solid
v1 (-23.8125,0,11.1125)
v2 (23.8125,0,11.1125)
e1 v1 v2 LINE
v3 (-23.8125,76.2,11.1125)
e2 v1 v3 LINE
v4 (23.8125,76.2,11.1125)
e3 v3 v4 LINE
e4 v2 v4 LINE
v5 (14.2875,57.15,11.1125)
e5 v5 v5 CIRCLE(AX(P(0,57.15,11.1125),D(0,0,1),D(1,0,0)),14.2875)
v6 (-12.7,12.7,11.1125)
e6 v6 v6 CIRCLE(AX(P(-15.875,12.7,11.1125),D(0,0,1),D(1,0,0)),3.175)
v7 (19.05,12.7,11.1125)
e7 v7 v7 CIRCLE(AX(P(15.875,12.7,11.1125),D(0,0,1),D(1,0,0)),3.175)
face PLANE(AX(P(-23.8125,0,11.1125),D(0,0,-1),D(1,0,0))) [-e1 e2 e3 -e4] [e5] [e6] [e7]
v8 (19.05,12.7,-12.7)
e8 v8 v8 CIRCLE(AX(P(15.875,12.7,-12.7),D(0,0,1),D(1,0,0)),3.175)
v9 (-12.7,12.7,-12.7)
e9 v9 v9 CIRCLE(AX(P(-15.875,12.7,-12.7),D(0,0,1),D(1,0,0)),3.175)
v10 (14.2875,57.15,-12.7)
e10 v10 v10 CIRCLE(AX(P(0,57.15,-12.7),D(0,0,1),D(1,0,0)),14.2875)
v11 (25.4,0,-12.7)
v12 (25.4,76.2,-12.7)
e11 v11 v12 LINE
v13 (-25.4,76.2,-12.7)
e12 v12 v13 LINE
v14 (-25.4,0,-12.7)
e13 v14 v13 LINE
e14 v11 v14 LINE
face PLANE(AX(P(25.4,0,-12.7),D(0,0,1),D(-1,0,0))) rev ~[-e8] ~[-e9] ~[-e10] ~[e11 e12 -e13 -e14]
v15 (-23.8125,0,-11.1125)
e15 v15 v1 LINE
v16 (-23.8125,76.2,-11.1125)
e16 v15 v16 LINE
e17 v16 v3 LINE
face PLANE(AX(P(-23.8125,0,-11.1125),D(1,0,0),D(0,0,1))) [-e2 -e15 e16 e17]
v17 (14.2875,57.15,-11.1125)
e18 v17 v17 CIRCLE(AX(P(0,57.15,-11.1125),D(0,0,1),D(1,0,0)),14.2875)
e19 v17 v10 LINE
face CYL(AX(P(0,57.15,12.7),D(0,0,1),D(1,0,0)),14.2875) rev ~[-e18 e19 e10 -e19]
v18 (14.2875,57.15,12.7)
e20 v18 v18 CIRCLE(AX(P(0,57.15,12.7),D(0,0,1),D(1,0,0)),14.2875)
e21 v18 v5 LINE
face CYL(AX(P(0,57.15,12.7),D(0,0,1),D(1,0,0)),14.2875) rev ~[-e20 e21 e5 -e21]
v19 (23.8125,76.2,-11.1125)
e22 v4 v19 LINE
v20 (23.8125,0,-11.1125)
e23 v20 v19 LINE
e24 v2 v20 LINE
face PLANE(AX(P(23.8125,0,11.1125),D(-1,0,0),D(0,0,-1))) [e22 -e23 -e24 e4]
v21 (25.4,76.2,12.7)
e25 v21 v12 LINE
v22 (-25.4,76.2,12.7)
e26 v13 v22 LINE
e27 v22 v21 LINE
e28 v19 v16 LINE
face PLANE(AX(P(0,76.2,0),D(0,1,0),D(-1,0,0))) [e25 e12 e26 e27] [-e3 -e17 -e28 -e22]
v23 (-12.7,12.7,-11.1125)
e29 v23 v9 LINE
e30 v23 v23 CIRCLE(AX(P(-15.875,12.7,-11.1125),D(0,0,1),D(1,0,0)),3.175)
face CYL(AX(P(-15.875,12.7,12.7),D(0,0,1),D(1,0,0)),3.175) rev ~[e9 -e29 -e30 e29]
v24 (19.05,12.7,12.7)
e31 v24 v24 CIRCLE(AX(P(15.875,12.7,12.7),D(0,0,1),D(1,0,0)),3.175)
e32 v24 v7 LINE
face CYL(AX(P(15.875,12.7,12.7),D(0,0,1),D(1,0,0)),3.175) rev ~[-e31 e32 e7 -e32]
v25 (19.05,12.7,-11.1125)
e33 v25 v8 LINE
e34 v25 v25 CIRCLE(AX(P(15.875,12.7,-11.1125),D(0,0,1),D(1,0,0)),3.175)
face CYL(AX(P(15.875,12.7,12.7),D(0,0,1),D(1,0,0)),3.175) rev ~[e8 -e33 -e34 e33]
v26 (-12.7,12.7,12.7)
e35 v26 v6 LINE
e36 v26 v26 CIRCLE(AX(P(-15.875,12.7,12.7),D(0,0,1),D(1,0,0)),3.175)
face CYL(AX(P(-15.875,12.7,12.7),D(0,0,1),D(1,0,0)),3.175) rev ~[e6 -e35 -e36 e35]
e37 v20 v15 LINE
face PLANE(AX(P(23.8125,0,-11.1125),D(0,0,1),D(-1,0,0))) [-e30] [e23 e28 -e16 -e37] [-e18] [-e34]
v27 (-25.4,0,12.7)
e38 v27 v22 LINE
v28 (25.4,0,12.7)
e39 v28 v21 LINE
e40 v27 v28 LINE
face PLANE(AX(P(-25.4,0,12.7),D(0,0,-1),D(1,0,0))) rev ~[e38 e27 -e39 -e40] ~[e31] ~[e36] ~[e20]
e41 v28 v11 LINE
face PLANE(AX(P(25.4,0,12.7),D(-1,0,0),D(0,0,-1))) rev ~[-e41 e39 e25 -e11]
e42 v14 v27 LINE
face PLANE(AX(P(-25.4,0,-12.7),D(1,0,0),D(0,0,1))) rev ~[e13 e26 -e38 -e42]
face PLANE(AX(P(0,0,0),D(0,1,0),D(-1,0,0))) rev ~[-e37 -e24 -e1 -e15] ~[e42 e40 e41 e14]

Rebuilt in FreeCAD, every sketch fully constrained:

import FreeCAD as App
import Part
import Sketcher
from FreeCAD import Vector
Q = App.Units.Quantity

doc = App.newDocument("Part")
body = doc.addObject("PartDesign::Body", "Body")

# Sketch on XZ plane
sketch1 = doc.addObject("Sketcher::SketchObject", "Sketch")
body.addObject(sketch1)
sketch1.AttachmentSupport = (doc.XZ_Plane, [""])
sketch1.MapMode = "FlatFace"
sketch1.addGeometry(Part.LineSegment(Vector(25, 13, 0), Vector(25, -13, 0)), False)
sketch1.addGeometry(Part.LineSegment(Vector(25, -13, 0), Vector(-25, -13, 0)), False)
sketch1.addGeometry(Part.LineSegment(Vector(-25, -13, 0), Vector(-25, 13, 0)), False)
sketch1.addGeometry(Part.LineSegment(Vector(-25, 13, 0), Vector(25, 13, 0)), False)
sketch1.addGeometry(Part.LineSegment(Vector(24, 11, 0), Vector(-24, 11, 0)), False)
sketch1.addGeometry(Part.LineSegment(Vector(-24, 11, 0), Vector(-24, -11, 0)), False)
sketch1.addGeometry(Part.LineSegment(Vector(-24, -11, 0), Vector(24, -11, 0)), False)
sketch1.addGeometry(Part.LineSegment(Vector(24, -11, 0), Vector(24, 11, 0)), False)
sketch1.addConstraint(Sketcher.Constraint("Coincident", 0, 2, 1, 1))
sketch1.addConstraint(Sketcher.Constraint("Coincident", 1, 2, 2, 1))
sketch1.addConstraint(Sketcher.Constraint("Coincident", 2, 2, 3, 1))
sketch1.addConstraint(Sketcher.Constraint("Coincident", 3, 2, 0, 1))
sketch1.addConstraint(Sketcher.Constraint("Coincident", 4, 2, 5, 1))
sketch1.addConstraint(Sketcher.Constraint("Coincident", 5, 2, 6, 1))
sketch1.addConstraint(Sketcher.Constraint("Coincident", 6, 2, 7, 1))
sketch1.addConstraint(Sketcher.Constraint("Coincident", 7, 2, 4, 1))
sketch1.addConstraint(Sketcher.Constraint("Vertical", 0))
sketch1.addConstraint(Sketcher.Constraint("Horizontal", 1))
sketch1.addConstraint(Sketcher.Constraint("Vertical", 2))
sketch1.addConstraint(Sketcher.Constraint("Horizontal", 3))
sketch1.addConstraint(Sketcher.Constraint("Horizontal", 4))
sketch1.addConstraint(Sketcher.Constraint("Vertical", 5))
sketch1.addConstraint(Sketcher.Constraint("Horizontal", 6))
sketch1.addConstraint(Sketcher.Constraint("Vertical", 7))
sketch1.addConstraint(Sketcher.Constraint("Symmetric", 0, 2, 2, 2, -1, 1))
sketch1.addConstraint(Sketcher.Constraint("Symmetric", 4, 2, 6, 2, -1, 1))
sketch1.addConstraint(Sketcher.Constraint("DistanceX", 1, 2, 1, 1, Q("2 in")))
sketch1.addConstraint(Sketcher.Constraint("DistanceY", 0, 2, 0, 1, Q("1 in")))
sketch1.addConstraint(Sketcher.Constraint("DistanceX", 2, 2, 4, 2, Q("0.0625 in")))
sketch1.addConstraint(Sketcher.Constraint("DistanceY", 4, 2, 2, 2, Q("0.0625 in")))
pad1 = doc.addObject("PartDesign::Pad", "Pad")
body.addObject(pad1)
pad1.Profile = sketch1
pad1.Length = Q("3 in")
pad1.Reversed = True

# Sketch on XY plane
sketch2 = doc.addObject("Sketcher::SketchObject", "Sketch001")
body.addObject(sketch2)
sketch2.AttachmentSupport = (doc.XY_Plane, [""])
sketch2.MapMode = "FlatFace"
sketch2.AttachmentOffset = App.Placement(Vector(0, 0, 0.5 * 25.4), App.Rotation())
sketch2.addGeometry(Part.Circle(Vector(0, 57.1, 0), Vector(0, 0, 1), 14.3), False)
sketch2.addGeometry(Part.Circle(Vector(-15.9, 12.7, 0), Vector(0, 0, 1), 3.2), False)
sketch2.addGeometry(Part.Circle(Vector(15.9, 12.7, 0), Vector(0, 0, 1), 3.2), False)
sketch2.addConstraint(Sketcher.Constraint("Equal", 1, 2))
sketch2.addConstraint(Sketcher.Constraint("Symmetric", 1, 3, 2, 3, -2))
sketch2.addConstraint(Sketcher.Constraint("PointOnObject", 0, 3, -2))
sketch2.addConstraint(Sketcher.Constraint("Diameter", 1, Q("0.25 in")))
sketch2.addConstraint(Sketcher.Constraint("Diameter", 0, Q("1.125 in")))
sketch2.addConstraint(Sketcher.Constraint("DistanceY", -1, 1, 1, 3, Q("0.5 in")))
sketch2.addConstraint(Sketcher.Constraint("DistanceX", 1, 3, 2, 3, Q("1.25 in")))
sketch2.addConstraint(Sketcher.Constraint("DistanceY", -1, 1, 0, 3, Q("2.25 in")))
pocket1 = doc.addObject("PartDesign::Pocket", "Pocket")
body.addObject(pocket1)
pocket1.Profile = sketch2
pocket1.Length = Q("3 in")

doc.recompute()
